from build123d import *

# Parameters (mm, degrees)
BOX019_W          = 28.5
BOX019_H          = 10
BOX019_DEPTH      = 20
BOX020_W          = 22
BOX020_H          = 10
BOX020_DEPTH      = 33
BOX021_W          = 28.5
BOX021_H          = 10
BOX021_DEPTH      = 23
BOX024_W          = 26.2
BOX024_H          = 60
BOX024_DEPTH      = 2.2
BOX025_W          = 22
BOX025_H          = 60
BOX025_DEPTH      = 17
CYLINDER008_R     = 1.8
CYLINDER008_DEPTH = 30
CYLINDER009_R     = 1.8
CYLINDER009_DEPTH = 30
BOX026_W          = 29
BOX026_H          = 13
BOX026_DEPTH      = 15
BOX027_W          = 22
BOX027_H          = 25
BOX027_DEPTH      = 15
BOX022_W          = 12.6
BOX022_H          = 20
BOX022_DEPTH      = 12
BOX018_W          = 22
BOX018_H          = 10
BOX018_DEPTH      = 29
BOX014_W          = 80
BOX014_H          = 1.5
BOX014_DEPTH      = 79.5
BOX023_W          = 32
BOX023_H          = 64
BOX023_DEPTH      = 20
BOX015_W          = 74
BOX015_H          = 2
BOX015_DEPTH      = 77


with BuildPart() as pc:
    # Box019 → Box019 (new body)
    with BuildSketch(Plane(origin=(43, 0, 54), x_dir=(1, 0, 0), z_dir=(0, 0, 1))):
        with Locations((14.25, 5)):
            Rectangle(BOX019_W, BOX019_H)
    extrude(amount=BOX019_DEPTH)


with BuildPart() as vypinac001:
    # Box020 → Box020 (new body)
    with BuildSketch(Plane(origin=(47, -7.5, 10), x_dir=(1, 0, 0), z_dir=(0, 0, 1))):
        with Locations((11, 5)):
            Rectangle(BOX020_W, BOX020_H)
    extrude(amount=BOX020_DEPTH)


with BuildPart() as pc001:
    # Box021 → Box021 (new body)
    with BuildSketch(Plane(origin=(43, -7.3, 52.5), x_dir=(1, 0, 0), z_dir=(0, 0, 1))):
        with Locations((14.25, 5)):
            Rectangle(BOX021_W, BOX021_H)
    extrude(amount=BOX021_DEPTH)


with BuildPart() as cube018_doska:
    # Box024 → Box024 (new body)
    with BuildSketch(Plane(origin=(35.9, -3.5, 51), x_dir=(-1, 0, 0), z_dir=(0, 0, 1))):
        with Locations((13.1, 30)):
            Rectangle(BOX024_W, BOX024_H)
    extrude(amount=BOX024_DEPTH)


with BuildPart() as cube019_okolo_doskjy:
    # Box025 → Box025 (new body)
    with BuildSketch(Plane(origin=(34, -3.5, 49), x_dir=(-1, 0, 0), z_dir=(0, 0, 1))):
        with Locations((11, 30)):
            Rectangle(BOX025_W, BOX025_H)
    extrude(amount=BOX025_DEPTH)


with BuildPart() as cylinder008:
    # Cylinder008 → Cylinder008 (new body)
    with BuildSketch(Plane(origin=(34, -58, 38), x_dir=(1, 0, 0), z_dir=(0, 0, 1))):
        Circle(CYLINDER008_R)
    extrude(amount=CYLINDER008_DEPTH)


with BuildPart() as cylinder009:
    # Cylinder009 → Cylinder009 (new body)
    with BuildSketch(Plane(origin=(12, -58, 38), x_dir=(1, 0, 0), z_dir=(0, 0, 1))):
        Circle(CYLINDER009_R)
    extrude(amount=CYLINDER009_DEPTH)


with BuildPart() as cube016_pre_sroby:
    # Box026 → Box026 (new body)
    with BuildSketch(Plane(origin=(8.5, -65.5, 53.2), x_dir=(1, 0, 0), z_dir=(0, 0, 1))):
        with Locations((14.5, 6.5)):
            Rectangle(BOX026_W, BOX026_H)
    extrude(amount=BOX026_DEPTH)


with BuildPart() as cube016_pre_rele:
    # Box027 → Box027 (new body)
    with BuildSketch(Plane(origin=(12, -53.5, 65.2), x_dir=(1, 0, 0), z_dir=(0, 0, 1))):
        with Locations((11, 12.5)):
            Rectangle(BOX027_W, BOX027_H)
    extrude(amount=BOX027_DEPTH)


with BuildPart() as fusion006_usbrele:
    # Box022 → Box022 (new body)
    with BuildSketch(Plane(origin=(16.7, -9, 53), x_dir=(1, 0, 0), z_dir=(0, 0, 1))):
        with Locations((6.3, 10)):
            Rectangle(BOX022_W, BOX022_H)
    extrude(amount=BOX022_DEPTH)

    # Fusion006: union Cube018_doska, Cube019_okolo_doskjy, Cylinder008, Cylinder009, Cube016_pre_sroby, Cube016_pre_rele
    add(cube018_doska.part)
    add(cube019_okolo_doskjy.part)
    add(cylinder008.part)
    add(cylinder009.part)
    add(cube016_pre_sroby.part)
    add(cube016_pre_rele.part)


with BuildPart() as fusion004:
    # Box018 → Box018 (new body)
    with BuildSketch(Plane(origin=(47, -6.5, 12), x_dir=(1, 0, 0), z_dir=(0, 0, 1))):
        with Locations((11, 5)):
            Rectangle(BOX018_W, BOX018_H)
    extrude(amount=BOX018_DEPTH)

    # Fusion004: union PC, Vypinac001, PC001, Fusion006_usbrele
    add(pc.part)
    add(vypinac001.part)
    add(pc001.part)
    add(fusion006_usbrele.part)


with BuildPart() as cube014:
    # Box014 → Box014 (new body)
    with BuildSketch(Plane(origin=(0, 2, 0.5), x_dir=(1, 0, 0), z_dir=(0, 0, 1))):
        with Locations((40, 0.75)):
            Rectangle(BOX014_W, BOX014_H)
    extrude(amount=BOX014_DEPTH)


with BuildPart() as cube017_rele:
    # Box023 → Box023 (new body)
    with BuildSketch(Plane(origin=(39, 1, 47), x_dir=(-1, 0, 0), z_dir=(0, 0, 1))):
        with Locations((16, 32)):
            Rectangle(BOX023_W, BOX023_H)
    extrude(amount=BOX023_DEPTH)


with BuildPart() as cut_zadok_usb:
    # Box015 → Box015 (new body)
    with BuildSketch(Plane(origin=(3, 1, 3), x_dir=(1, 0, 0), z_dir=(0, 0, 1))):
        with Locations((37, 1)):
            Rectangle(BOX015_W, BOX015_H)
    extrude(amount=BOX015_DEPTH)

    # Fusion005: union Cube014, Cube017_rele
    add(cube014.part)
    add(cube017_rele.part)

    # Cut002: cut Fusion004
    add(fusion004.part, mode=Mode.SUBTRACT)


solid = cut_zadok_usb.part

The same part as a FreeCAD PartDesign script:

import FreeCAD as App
import Part
import Sketcher


def add_polygon(sketch, points):
    """Adds a closed chain of lines whose ends are joined by coincident constraints."""
    first, n = sketch.GeometryCount, len(points)
    for a, b in zip(points, points[1:] + points[:1]):
        sketch.addGeometry(Part.LineSegment(App.Vector(*a, 0), App.Vector(*b, 0)), False)
    for i in range(n):
        sketch.addConstraint(Sketcher.Constraint("Coincident", first + i, 2, first + (i + 1) % n, 1))

doc = App.newDocument("Part")
body = doc.addObject("PartDesign::Body", "Body")

# Sketch on XY plane
sketch1 = body.newObject("Sketcher::SketchObject", "Sketch")
sketch1.AttachmentSupport = (doc.getObject("XY_Plane"), [""])
sketch1.MapMode = "FlatFace"
sketch1.AttachmentOffset = App.Placement(App.Vector(0, 0, 54), App.Rotation())
add_polygon(sketch1, [(43, 10), (43, 0), (71.5, 0), (71.5, 10)])  # lines 0-3
sketch1.addConstraint([
    Sketcher.Constraint("Vertical", 0),
    Sketcher.Constraint("Horizontal", 1),
    Sketcher.Constraint("Vertical", 2),
    Sketcher.Constraint("Horizontal", 3),
    Sketcher.Constraint("PointOnObject", 0, 2, -1),
    Sketcher.Constraint("DistanceY", 0, 2, 0, 1, 10.0),
    Sketcher.Constraint("DistanceX", 1, 1, 1, 2, 28.5),
    Sketcher.Constraint("DistanceX", -1, 1, 0, 2, 43.0),
])
pad1 = body.newObject("PartDesign::Pad", "Pad")
pad1.Profile = sketch1
pad1.Length = 20
body2 = doc.addObject("PartDesign::Body", "Body001")

# Sketch on XY plane
sketch2 = body2.newObject("Sketcher::SketchObject", "Sketch001")
sketch2.AttachmentSupport = (doc.getObject("XY_Plane001"), [""])
sketch2.MapMode = "FlatFace"
sketch2.AttachmentOffset = App.Placement(App.Vector(0, 0, 10), App.Rotation())
add_polygon(sketch2, [(47, 2.5), (47, -7.5), (69, -7.5), (69, 2.5)])  # lines 0-3
sketch2.addConstraint([
    Sketcher.Constraint("Vertical", 0),
    Sketcher.Constraint("Horizontal", 1),
    Sketcher.Constraint("Vertical", 2),
    Sketcher.Constraint("Horizontal", 3),
    Sketcher.Constraint("DistanceX", 1, 1, 1, 2, 22.0),
    Sketcher.Constraint("DistanceY", 0, 2, 0, 1, 10.0),
    Sketcher.Constraint("DistanceX", -1, 1, 0, 2, 47.0),
    Sketcher.Constraint("DistanceY", 0, 2, -1, 1, 7.5),
])
pad2 = body2.newObject("PartDesign::Pad", "Pad001")
pad2.Profile = sketch2
pad2.Length = 33
body3 = doc.addObject("PartDesign::Body", "Body002")

# Sketch on XY plane
sketch3 = body3.newObject("Sketcher::SketchObject", "Sketch002")
sketch3.AttachmentSupport = (doc.getObject("XY_Plane002"), [""])
sketch3.MapMode = "FlatFace"
sketch3.AttachmentOffset = App.Placement(App.Vector(0, 0, 52.5), App.Rotation())
add_polygon(sketch3, [(43, 2.7), (43, -7.3), (71.5, -7.3), (71.5, 2.7)])  # lines 0-3
sketch3.addConstraint([
    Sketcher.Constraint("Vertical", 0),
    Sketcher.Constraint("Horizontal", 1),
    Sketcher.Constraint("Vertical", 2),
    Sketcher.Constraint("Horizontal", 3),
    Sketcher.Constraint("DistanceY", 0, 2, 0, 1, 10.0),
    Sketcher.Constraint("DistanceX", 1, 1, 1, 2, 28.5),
    Sketcher.Constraint("DistanceX", -1, 1, 0, 2, 43.0),
    Sketcher.Constraint("DistanceY", 0, 2, -1, 1, 7.3),
])
pad3 = body3.newObject("PartDesign::Pad", "Pad002")
pad3.Profile = sketch3
pad3.Length = 23
body4 = doc.addObject("PartDesign::Body", "Body003")

# Sketch on XY plane
sketch4 = body4.newObject("Sketcher::SketchObject", "Sketch003")
sketch4.AttachmentSupport = (doc.getObject("XY_Plane003"), [""])
sketch4.MapMode = "FlatFace"
sketch4.AttachmentOffset = App.Placement(App.Vector(0, 0, 51), App.Rotation())
add_polygon(sketch4, [(35.9, -63.5), (35.9, -3.5), (9.7, -3.5), (9.7, -63.5)])  # lines 0-3
sketch4.addConstraint([
    Sketcher.Constraint("Vertical", 0),
    Sketcher.Constraint("Horizontal", 1),
    Sketcher.Constraint("Vertical", 2),
    Sketcher.Constraint("Horizontal", 3),
    Sketcher.Constraint("DistanceY", 0, 1, 0, 2, 60.0),
    Sketcher.Constraint("DistanceX", 1, 2, 1, 1, 26.2),
    Sketcher.Constraint("DistanceX", -1, 1, 0, 2, 35.9),
    Sketcher.Constraint("DistanceY", 0, 2, -1, 1, 3.5),
])
pad4 = body4.newObject("PartDesign::Pad", "Pad003")
pad4.Profile = sketch4
pad4.Length = 2.2
body5 = doc.addObject("PartDesign::Body", "Body004")

# Sketch on XY plane
sketch5 = body5.newObject("Sketcher::SketchObject", "Sketch004")
sketch5.AttachmentSupport = (doc.getObject("XY_Plane004"), [""])
sketch5.MapMode = "FlatFace"
sketch5.AttachmentOffset = App.Placement(App.Vector(0, 0, 49), App.Rotation())
add_polygon(sketch5, [(34, -63.5), (34, -3.5), (12, -3.5), (12, -63.5)])  # lines 0-3
sketch5.addConstraint([
    Sketcher.Constraint("Vertical", 0),
    Sketcher.Constraint("Horizontal", 1),
    Sketcher.Constraint("Vertical", 2),
    Sketcher.Constraint("Horizontal", 3),
    Sketcher.Constraint("DistanceX", 1, 2, 1, 1, 22.0),
    Sketcher.Constraint("DistanceY", 0, 1, 0, 2, 60.0),
    Sketcher.Constraint("DistanceX", -1, 1, 0, 2, 34.0),
    Sketcher.Constraint("DistanceY", 0, 2, -1, 1, 3.5),
])
pad5 = body5.newObject("PartDesign::Pad", "Pad004")
pad5.Profile = sketch5
pad5.Length = 17
body6 = doc.addObject("PartDesign::Body", "Body005")

# Sketch on XY plane
sketch6 = body6.newObject("Sketcher::SketchObject", "Sketch005")
sketch6.AttachmentSupport = (doc.getObject("XY_Plane005"), [""])
sketch6.MapMode = "FlatFace"
sketch6.AttachmentOffset = App.Placement(App.Vector(0, 0, 38), App.Rotation())
sketch6.addGeometry(Part.Circle(App.Vector(34, -58, 0), App.Vector(0, 0, 1), 1.8), False)
sketch6.addConstraint([
    Sketcher.Constraint("Diameter", 0, 3.6),
    Sketcher.Constraint("DistanceX", -1, 1, 0, 3, 34.0),
    Sketcher.Constraint("DistanceY", 0, 3, -1, 1, 58.0),
])
pad6 = body6.newObject("PartDesign::Pad", "Pad005")
pad6.Profile = sketch6
pad6.Length = 30
body7 = doc.addObject("PartDesign::Body", "Body006")

# Sketch on XY plane
sketch7 = body7.newObject("Sketcher::SketchObject", "Sketch006")
sketch7.AttachmentSupport = (doc.getObject("XY_Plane006"), [""])
sketch7.MapMode = "FlatFace"
sketch7.AttachmentOffset = App.Placement(App.Vector(0, 0, 38), App.Rotation())
sketch7.addGeometry(Part.Circle(App.Vector(12, -58, 0), App.Vector(0, 0, 1), 1.8), False)
sketch7.addConstraint([
    Sketcher.Constraint("Diameter", 0, 3.6),
    Sketcher.Constraint("DistanceX", -1, 1, 0, 3, 12.0),
    Sketcher.Constraint("DistanceY", 0, 3, -1, 1, 58.0),
])
pad7 = body7.newObject("PartDesign::Pad", "Pad006")
pad7.Profile = sketch7
pad7.Length = 30
body8 = doc.addObject("PartDesign::Body", "Body007")

# Sketch on XY plane
sketch8 = body8.newObject("Sketcher::SketchObject", "Sketch007")
sketch8.AttachmentSupport = (doc.getObject("XY_Plane007"), [""])
sketch8.MapMode = "FlatFace"
sketch8.AttachmentOffset = App.Placement(App.Vector(0, 0, 53.2), App.Rotation())
add_polygon(sketch8, [(8.5, -52.5), (8.5, -65.5), (37.5, -65.5), (37.5, -52.5)])  # lines 0-3
sketch8.addConstraint([
    Sketcher.Constraint("Vertical", 0),
    Sketcher.Constraint("Horizontal", 1),
    Sketcher.Constraint("Vertical", 2),
    Sketcher.Constraint("Horizontal", 3),
    Sketcher.Constraint("DistanceX", 1, 1, 1, 2, 29.0),
    Sketcher.Constraint("DistanceY", 0, 2, 0, 1, 13.0),
    Sketcher.Constraint("DistanceX", -1, 1, 0, 2, 8.5),
    Sketcher.Constraint("DistanceY", 0, 2, -1, 1, 65.5),
])
pad8 = body8.newObject("PartDesign::Pad", "Pad007")
pad8.Profile = sketch8
pad8.Length = 15
body9 = doc.addObject("PartDesign::Body", "Body008")

# Sketch on XY plane
sketch9 = body9.newObject("Sketcher::SketchObject", "Sketch008")
sketch9.AttachmentSupport = (doc.getObject("XY_Plane008"), [""])
sketch9.MapMode = "FlatFace"
sketch9.AttachmentOffset = App.Placement(App.Vector(0, 0, 65.2), App.Rotation())
add_polygon(sketch9, [(12, -28.5), (12, -53.5), (34, -53.5), (34, -28.5)])  # lines 0-3
sketch9.addConstraint([
    Sketcher.Constraint("Vertical", 0),
    Sketcher.Constraint("Horizontal", 1),
    Sketcher.Constraint("Vertical", 2),
    Sketcher.Constraint("Horizontal", 3),
    Sketcher.Constraint("DistanceX", 1, 1, 1, 2, 22.0),
    Sketcher.Constraint("DistanceY", 0, 2, 0, 1, 25.0),
    Sketcher.Constraint("DistanceX", -1, 1, 0, 2, 12.0),
    Sketcher.Constraint("DistanceY", 0, 2, -1, 1, 53.5),
])
pad9 = body9.newObject("PartDesign::Pad", "Pad008")
pad9.Profile = sketch9
pad9.Length = 15
body10 = doc.addObject("PartDesign::Body", "Body009")

# Sketch on XY plane
sketch10 = body10.newObject("Sketcher::SketchObject", "Sketch009")
sketch10.AttachmentSupport = (doc.getObject("XY_Plane009"), [""])
sketch10.MapMode = "FlatFace"
sketch10.AttachmentOffset = App.Placement(App.Vector(0, 0, 53), App.Rotation())
add_polygon(sketch10, [(16.7, 11), (16.7, -9), (29.3, -9), (29.3, 11)])  # lines 0-3
sketch10.addConstraint([
    Sketcher.Constraint("Vertical", 0),
    Sketcher.Constraint("Horizontal", 1),
    Sketcher.Constraint("Vertical", 2),
    Sketcher.Constraint("Horizontal", 3),
    Sketcher.Constraint("DistanceY", 0, 2, 0, 1, 20.0),
    Sketcher.Constraint("DistanceX", 1, 1, 1, 2, 12.6),
    Sketcher.Constraint("DistanceY", 0, 2, -1, 1, 9.0),
    Sketcher.Constraint("DistanceX", -1, 1, 0, 2, 16.7),
])
pad10 = body10.newObject("PartDesign::Pad", "Pad009")
pad10.Profile = sketch10
pad10.Length = 12
doc.recompute()

boolean = body10.newObject("PartDesign::Boolean", "Boolean")
boolean.Type = "Fuse"
boolean.addObjects([body4])
doc.recompute()

boolean2 = body10.newObject("PartDesign::Boolean", "Boolean001")
boolean2.Type = "Fuse"
boolean2.addObjects([body5])
doc.recompute()

boolean3 = body10.newObject("PartDesign::Boolean", "Boolean002")
boolean3.Type = "Fuse"
boolean3.addObjects([body6])
doc.recompute()

boolean4 = body10.newObject("PartDesign::Boolean", "Boolean003")
boolean4.Type = "Fuse"
boolean4.addObjects([body7])
doc.recompute()

boolean5 = body10.newObject("PartDesign::Boolean", "Boolean004")
boolean5.Type = "Fuse"
boolean5.addObjects([body8])
doc.recompute()

boolean6 = body10.newObject("PartDesign::Boolean", "Boolean005")
boolean6.Type = "Fuse"
boolean6.addObjects([body9])
body11 = doc.addObject("PartDesign::Body", "Body010")
body11.AllowCompound = True

# Sketch on XY plane
sketch11 = body11.newObject("Sketcher::SketchObject", "Sketch010")
sketch11.AttachmentSupport = (doc.getObject("XY_Plane010"), [""])
sketch11.MapMode = "FlatFace"
sketch11.AttachmentOffset = App.Placement(App.Vector(0, 0, 12), App.Rotation())
add_polygon(sketch11, [(47, 3.5), (47, -6.5), (69, -6.5), (69, 3.5)])  # lines 0-3
sketch11.addConstraint([
    Sketcher.Constraint("Vertical", 0),
    Sketcher.Constraint("Horizontal", 1),
    Sketcher.Constraint("Vertical", 2),
    Sketcher.Constraint("Horizontal", 3),
    Sketcher.Constraint("DistanceX", 1, 1, 1, 2, 22.0),
    Sketcher.Constraint("DistanceY", 0, 2, 0, 1, 10.0),
    Sketcher.Constraint("DistanceX", -1, 1, 0, 2, 47.0),
    Sketcher.Constraint("DistanceY", 0, 2, -1, 1, 6.5),
])
pad11 = body11.newObject("PartDesign::Pad", "Pad010")
pad11.Profile = sketch11
pad11.Length = 29
doc.recompute()

boolean7 = body11.newObject("PartDesign::Boolean", "Boolean006")
boolean7.Type = "Fuse"
boolean7.addObjects([body])
doc.recompute()

boolean8 = body11.newObject("PartDesign::Boolean", "Boolean007")
boolean8.Type = "Fuse"
boolean8.addObjects([body2])
doc.recompute()

boolean9 = body11.newObject("PartDesign::Boolean", "Boolean008")
boolean9.Type = "Fuse"
boolean9.addObjects([body3])
doc.recompute()

boolean10 = body11.newObject("PartDesign::Boolean", "Boolean009")
boolean10.Type = "Fuse"
boolean10.addObjects([body10])
body12 = doc.addObject("PartDesign::Body", "Body011")

# Sketch on XY plane
sketch12 = body12.newObject("Sketcher::SketchObject", "Sketch011")
sketch12.AttachmentSupport = (doc.getObject("XY_Plane011"), [""])
sketch12.MapMode = "FlatFace"
sketch12.AttachmentOffset = App.Placement(App.Vector(0, 0, 0.5), App.Rotation())
add_polygon(sketch12, [(0, 3.5), (0, 2), (80, 2), (80, 3.5)])  # lines 0-3
sketch12.addConstraint([
    Sketcher.Constraint("Vertical", 0),
    Sketcher.Constraint("Horizontal", 1),
    Sketcher.Constraint("Vertical", 2),
    Sketcher.Constraint("Horizontal", 3),
    Sketcher.Constraint("PointOnObject", 0, 2, -2),
    Sketcher.Constraint("DistanceX", 1, 1, 1, 2, 80.0),
    Sketcher.Constraint("DistanceY", 0, 2, 0, 1, 1.5),
    Sketcher.Constraint("DistanceY", -1, 1, 0, 2, 2.0),
])
pad12 = body12.newObject("PartDesign::Pad", "Pad011")
pad12.Profile = sketch12
pad12.Length = 79.5
body13 = doc.addObject("PartDesign::Body", "Body012")

# Sketch on XY plane
sketch13 = body13.newObject("Sketcher::SketchObject", "Sketch012")
sketch13.AttachmentSupport = (doc.getObject("XY_Plane012"), [""])
sketch13.MapMode = "FlatFace"
sketch13.AttachmentOffset = App.Placement(App.Vector(0, 0, 47), App.Rotation())
add_polygon(sketch13, [(39, -63), (39, 1), (7, 1), (7, -63)])  # lines 0-3
sketch13.addConstraint([
    Sketcher.Constraint("Vertical", 0),
    Sketcher.Constraint("Horizontal", 1),
    Sketcher.Constraint("Vertical", 2),
    Sketcher.Constraint("Horizontal", 3),
    Sketcher.Constraint("DistanceX", 1, 2, 1, 1, 32.0),
    Sketcher.Constraint("DistanceY", 0, 1, 0, 2, 64.0),
    Sketcher.Constraint("DistanceX", -1, 1, 0, 2, 39.0),
    Sketcher.Constraint("DistanceY", -1, 1, 0, 2, 1.0),
])
pad13 = body13.newObject("PartDesign::Pad", "Pad012")
pad13.Profile = sketch13
pad13.Length = 20
body14 = doc.addObject("PartDesign::Body", "Body013")

# Sketch on XY plane
sketch14 = body14.newObject("Sketcher::SketchObject", "Sketch013")
sketch14.AttachmentSupport = (doc.getObject("XY_Plane013"), [""])
sketch14.MapMode = "FlatFace"
sketch14.AttachmentOffset = App.Placement(App.Vector(0, 0, 3), App.Rotation())
add_polygon(sketch14, [(3, 3), (3, 1), (77, 1), (77, 3)])  # lines 0-3
sketch14.addConstraint([
    Sketcher.Constraint("Vertical", 0),
    Sketcher.Constraint("Horizontal", 1),
    Sketcher.Constraint("Vertical", 2),
    Sketcher.Constraint("Horizontal", 3),
    Sketcher.Constraint("DistanceX", 1, 1, 1, 2, 74.0),
    Sketcher.Constraint("DistanceY", 0, 2, 0, 1, 2.0),
    Sketcher.Constraint("DistanceX", -1, 1, 0, 2, 3.0),
    Sketcher.Constraint("DistanceY", -1, 1, 0, 2, 1.0),
])
pad14 = body14.newObject("PartDesign::Pad", "Pad013")
pad14.Profile = sketch14
pad14.Length = 77
doc.recompute()

boolean11 = body14.newObject("PartDesign::Boolean", "Boolean010")
boolean11.Type = "Fuse"
boolean11.addObjects([body12])
doc.recompute()

boolean12 = body14.newObject("PartDesign::Boolean", "Boolean011")
boolean12.Type = "Fuse"
boolean12.addObjects([body13])
doc.recompute()

boolean13 = body14.newObject("PartDesign::Boolean", "Boolean012")
boolean13.Type = "Cut"
boolean13.addObjects([body11])

doc.recompute()
